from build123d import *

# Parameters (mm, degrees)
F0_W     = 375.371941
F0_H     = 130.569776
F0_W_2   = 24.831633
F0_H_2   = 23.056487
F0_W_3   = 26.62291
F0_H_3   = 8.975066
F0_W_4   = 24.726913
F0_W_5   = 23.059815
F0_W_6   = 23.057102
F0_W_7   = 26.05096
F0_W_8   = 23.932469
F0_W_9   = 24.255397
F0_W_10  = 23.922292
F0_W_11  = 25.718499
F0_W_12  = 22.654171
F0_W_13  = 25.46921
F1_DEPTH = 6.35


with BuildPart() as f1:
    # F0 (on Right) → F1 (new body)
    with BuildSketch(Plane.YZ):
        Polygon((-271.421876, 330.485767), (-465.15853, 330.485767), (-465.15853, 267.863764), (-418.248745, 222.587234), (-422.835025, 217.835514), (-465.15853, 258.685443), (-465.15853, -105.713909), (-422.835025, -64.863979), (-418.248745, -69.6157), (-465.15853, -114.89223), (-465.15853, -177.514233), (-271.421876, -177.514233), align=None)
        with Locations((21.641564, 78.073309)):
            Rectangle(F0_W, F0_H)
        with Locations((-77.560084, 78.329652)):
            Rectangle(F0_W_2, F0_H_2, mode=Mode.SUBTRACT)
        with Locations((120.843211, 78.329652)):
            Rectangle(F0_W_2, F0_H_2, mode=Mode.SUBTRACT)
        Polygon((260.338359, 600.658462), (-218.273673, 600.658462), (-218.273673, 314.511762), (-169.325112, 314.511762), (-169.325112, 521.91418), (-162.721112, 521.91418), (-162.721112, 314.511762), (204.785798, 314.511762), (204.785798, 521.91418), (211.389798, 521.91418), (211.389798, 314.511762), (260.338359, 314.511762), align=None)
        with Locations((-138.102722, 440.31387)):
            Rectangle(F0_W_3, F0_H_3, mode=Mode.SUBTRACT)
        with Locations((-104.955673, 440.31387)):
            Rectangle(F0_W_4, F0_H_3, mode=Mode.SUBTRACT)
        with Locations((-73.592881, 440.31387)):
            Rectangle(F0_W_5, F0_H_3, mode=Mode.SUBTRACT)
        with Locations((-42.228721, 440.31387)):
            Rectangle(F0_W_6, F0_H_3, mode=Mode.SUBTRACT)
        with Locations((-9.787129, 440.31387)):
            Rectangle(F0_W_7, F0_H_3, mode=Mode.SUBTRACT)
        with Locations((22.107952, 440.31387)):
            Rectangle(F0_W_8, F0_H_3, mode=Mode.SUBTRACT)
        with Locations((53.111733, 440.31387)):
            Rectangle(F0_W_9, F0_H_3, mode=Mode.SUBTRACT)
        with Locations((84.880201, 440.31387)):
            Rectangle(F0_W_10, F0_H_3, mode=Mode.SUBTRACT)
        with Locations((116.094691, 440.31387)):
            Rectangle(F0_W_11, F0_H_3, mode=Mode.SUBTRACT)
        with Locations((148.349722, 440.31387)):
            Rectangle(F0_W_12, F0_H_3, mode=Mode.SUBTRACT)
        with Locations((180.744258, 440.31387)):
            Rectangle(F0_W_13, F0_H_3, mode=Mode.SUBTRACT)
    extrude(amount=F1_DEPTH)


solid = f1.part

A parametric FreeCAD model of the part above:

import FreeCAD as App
import Part
import Sketcher

V = App.Vector
Q = App.Units.Quantity

doc = App.newDocument("Part")
body = doc.addObject("PartDesign::Body", "Body")
body.AllowCompound = True

# Sketch on YZ plane
sketch1 = body.newObject("Sketcher::SketchObject", "Sketch")
sketch1.AttachmentSupport = (doc.getObject("YZ_Plane"), [""])
sketch1.MapMode = "FlatFace"
sketch1.addGeometry(Part.LineSegment(V(-271, 330, 0), V(-465, 330, 0)), False)
sketch1.addGeometry(Part.LineSegment(V(-465, 330, 0), V(-465, 268, 0)), False)
sketch1.addGeometry(Part.LineSegment(V(-465, 268, 0), V(-418, 223, 0)), False)
sketch1.addGeometry(Part.LineSegment(V(-418, 223, 0), V(-423, 218, 0)), False)
sketch1.addGeometry(Part.LineSegment(V(-423, 218, 0), V(-465, 259, 0)), False)
sketch1.addGeometry(Part.LineSegment(V(-465, 259, 0), V(-465, -106, 0)), False)
sketch1.addGeometry(Part.LineSegment(V(-465, -106, 0), V(-423, -65, 0)), False)
sketch1.addGeometry(Part.LineSegment(V(-423, -65, 0), V(-418, -70, 0)), False)
sketch1.addGeometry(Part.LineSegment(V(-418, -70, 0), V(-465, -115, 0)), False)
sketch1.addGeometry(Part.LineSegment(V(-465, -115, 0), V(-465, -178, 0)), False)
sketch1.addGeometry(Part.LineSegment(V(-465, -178, 0), V(-271, -178, 0)), False)
sketch1.addGeometry(Part.LineSegment(V(-271, -178, 0), V(-271, 330, 0)), False)
sketch1.addGeometry(Part.LineSegment(V(-166, 143, 0), V(-166, 13, 0)), False)
sketch1.addGeometry(Part.LineSegment(V(-166, 13, 0), V(209, 13, 0)), False)
sketch1.addGeometry(Part.LineSegment(V(209, 13, 0), V(209, 143, 0)), False)
sketch1.addGeometry(Part.LineSegment(V(209, 143, 0), V(-166, 143, 0)), False)
sketch1.addGeometry(Part.LineSegment(V(-65, 67, 0), V(-90, 67, 0)), False)
sketch1.addGeometry(Part.LineSegment(V(-90, 67, 0), V(-90, 90, 0)), False)
sketch1.addGeometry(Part.LineSegment(V(-90, 90, 0), V(-65, 90, 0)), False)
sketch1.addGeometry(Part.LineSegment(V(-65, 90, 0), V(-65, 67, 0)), False)
sketch1.addGeometry(Part.LineSegment(V(133, 67, 0), V(108, 67, 0)), False)
sketch1.addGeometry(Part.LineSegment(V(108, 67, 0), V(108, 90, 0)), False)
sketch1.addGeometry(Part.LineSegment(V(108, 90, 0), V(133, 90, 0)), False)
sketch1.addGeometry(Part.LineSegment(V(133, 90, 0), V(133, 67, 0)), False)
sketch1.addGeometry(Part.LineSegment(V(260, 601, 0), V(-218, 601, 0)), False)
sketch1.addGeometry(Part.LineSegment(V(-218, 601, 0), V(-218, 315, 0)), False)
sketch1.addGeometry(Part.LineSegment(V(-218, 315, 0), V(-169, 315, 0)), False)
sketch1.addGeometry(Part.LineSegment(V(-169, 315, 0), V(-169, 522, 0)), False)
sketch1.addGeometry(Part.LineSegment(V(-169, 522, 0), V(-163, 522, 0)), False)
sketch1.addGeometry(Part.LineSegment(V(-163, 522, 0), V(-163, 315, 0)), False)
sketch1.addGeometry(Part.LineSegment(V(-163, 315, 0), V(205, 315, 0)), False)
sketch1.addGeometry(Part.LineSegment(V(205, 315, 0), V(205, 522, 0)), False)
sketch1.addGeometry(Part.LineSegment(V(205, 522, 0), V(211, 522, 0)), False)
sketch1.addGeometry(Part.LineSegment(V(211, 522, 0), V(211, 315, 0)), False)
sketch1.addGeometry(Part.LineSegment(V(211, 315, 0), V(260, 315, 0)), False)
sketch1.addGeometry(Part.LineSegment(V(260, 315, 0), V(260, 601, 0)), False)
sketch1.addGeometry(Part.LineSegment(V(-125, 436, 0), V(-151, 436, 0)), False)
sketch1.addGeometry(Part.LineSegment(V(-151, 436, 0), V(-151, 445, 0)), False)
sketch1.addGeometry(Part.LineSegment(V(-151, 445, 0), V(-125, 445, 0)), False)
sketch1.addGeometry(Part.LineSegment(V(-125, 445, 0), V(-125, 436, 0)), False)
sketch1.addGeometry(Part.LineSegment(V(-93, 436, 0), V(-117, 436, 0)), False)
sketch1.addGeometry(Part.LineSegment(V(-117, 436, 0), V(-117, 445, 0)), False)
sketch1.addGeometry(Part.LineSegment(V(-117, 445, 0), V(-93, 445, 0)), False)
sketch1.addGeometry(Part.LineSegment(V(-93, 445, 0), V(-93, 436, 0)), False)
sketch1.addGeometry(Part.LineSegment(V(-62, 436, 0), V(-85, 436, 0)), False)
sketch1.addGeometry(Part.LineSegment(V(-85, 436, 0), V(-85, 445, 0)), False)
sketch1.addGeometry(Part.LineSegment(V(-85, 445, 0), V(-62, 445, 0)), False)
sketch1.addGeometry(Part.LineSegment(V(-62, 445, 0), V(-62, 436, 0)), False)
sketch1.addGeometry(Part.LineSegment(V(-31, 436, 0), V(-54, 436, 0)), False)
sketch1.addGeometry(Part.LineSegment(V(-54, 436, 0), V(-54, 445, 0)), False)
sketch1.addGeometry(Part.LineSegment(V(-54, 445, 0), V(-31, 445, 0)), False)
sketch1.addGeometry(Part.LineSegment(V(-31, 445, 0), V(-31, 436, 0)), False)
sketch1.addGeometry(Part.LineSegment(V(3, 436, 0), V(-23, 436, 0)), False)
sketch1.addGeometry(Part.LineSegment(V(-23, 436, 0), V(-23, 445, 0)), False)
sketch1.addGeometry(Part.LineSegment(V(-23, 445, 0), V(3, 445, 0)), False)
sketch1.addGeometry(Part.LineSegment(V(3, 445, 0), V(3, 436, 0)), False)
sketch1.addGeometry(Part.LineSegment(V(34, 436, 0), V(10, 436, 0)), False)
sketch1.addGeometry(Part.LineSegment(V(10, 436, 0), V(10, 445, 0)), False)
sketch1.addGeometry(Part.LineSegment(V(10, 445, 0), V(34, 445, 0)), False)
sketch1.addGeometry(Part.LineSegment(V(34, 445, 0), V(34, 436, 0)), False)
sketch1.addGeometry(Part.LineSegment(V(65, 436, 0), V(41, 436, 0)), False)
sketch1.addGeometry(Part.LineSegment(V(41, 436, 0), V(41, 445, 0)), False)
sketch1.addGeometry(Part.LineSegment(V(41, 445, 0), V(65, 445, 0)), False)
sketch1.addGeometry(Part.LineSegment(V(65, 445, 0), V(65, 436, 0)), False)
sketch1.addGeometry(Part.LineSegment(V(97, 436, 0), V(73, 436, 0)), False)
sketch1.addGeometry(Part.LineSegment(V(73, 436, 0), V(73, 445, 0)), False)
sketch1.addGeometry(Part.LineSegment(V(73, 445, 0), V(97, 445, 0)), False)
sketch1.addGeometry(Part.LineSegment(V(97, 445, 0), V(97, 436, 0)), False)
sketch1.addGeometry(Part.LineSegment(V(129, 436, 0), V(103, 436, 0)), False)
sketch1.addGeometry(Part.LineSegment(V(103, 436, 0), V(103, 445, 0)), False)
sketch1.addGeometry(Part.LineSegment(V(103, 445, 0), V(129, 445, 0)), False)
sketch1.addGeometry(Part.LineSegment(V(129, 445, 0), V(129, 436, 0)), False)
sketch1.addGeometry(Part.LineSegment(V(160, 436, 0), V(137, 436, 0)), False)
sketch1.addGeometry(Part.LineSegment(V(137, 436, 0), V(137, 445, 0)), False)
sketch1.addGeometry(Part.LineSegment(V(137, 445, 0), V(160, 445, 0)), False)
sketch1.addGeometry(Part.LineSegment(V(160, 445, 0), V(160, 436, 0)), False)
sketch1.addGeometry(Part.LineSegment(V(193, 436, 0), V(168, 436, 0)), False)
sketch1.addGeometry(Part.LineSegment(V(168, 436, 0), V(168, 445, 0)), False)
sketch1.addGeometry(Part.LineSegment(V(168, 445, 0), V(193, 445, 0)), False)
sketch1.addGeometry(Part.LineSegment(V(193, 445, 0), V(193, 436, 0)), False)
sketch1.addConstraint(Sketcher.Constraint("Coincident", 0, 2, 1, 1))
sketch1.addConstraint(Sketcher.Constraint("Coincident", 1, 2, 2, 1))
sketch1.addConstraint(Sketcher.Constraint("Coincident", 2, 2, 3, 1))
sketch1.addConstraint(Sketcher.Constraint("Coincident", 3, 2, 4, 1))
sketch1.addConstraint(Sketcher.Constraint("Coincident", 4, 2, 5, 1))
sketch1.addConstraint(Sketcher.Constraint("Coincident", 5, 2, 6, 1))
sketch1.addConstraint(Sketcher.Constraint("Coincident", 6, 2, 7, 1))
sketch1.addConstraint(Sketcher.Constraint("Coincident", 7, 2, 8, 1))
sketch1.addConstraint(Sketcher.Constraint("Coincident", 8, 2, 9, 1))
sketch1.addConstraint(Sketcher.Constraint("Coincident", 9, 2, 10, 1))
sketch1.addConstraint(Sketcher.Constraint("Coincident", 10, 2, 11, 1))
sketch1.addConstraint(Sketcher.Constraint("Coincident", 11, 2, 0, 1))
sketch1.addConstraint(Sketcher.Constraint("Coincident", 12, 2, 13, 1))
sketch1.addConstraint(Sketcher.Constraint("Coincident", 13, 2, 14, 1))
sketch1.addConstraint(Sketcher.Constraint("Coincident", 14, 2, 15, 1))
sketch1.addConstraint(Sketcher.Constraint("Coincident", 15, 2, 12, 1))
sketch1.addConstraint(Sketcher.Constraint("Coincident", 16, 2, 17, 1))
sketch1.addConstraint(Sketcher.Constraint("Coincident", 17, 2, 18, 1))
sketch1.addConstraint(Sketcher.Constraint("Coincident", 18, 2, 19, 1))
sketch1.addConstraint(Sketcher.Constraint("Coincident", 19, 2, 16, 1))
sketch1.addConstraint(Sketcher.Constraint("Coincident", 20, 2, 21, 1))
sketch1.addConstraint(Sketcher.Constraint("Coincident", 21, 2, 22, 1))
sketch1.addConstraint(Sketcher.Constraint("Coincident", 22, 2, 23, 1))
sketch1.addConstraint(Sketcher.Constraint("Coincident", 23, 2, 20, 1))
sketch1.addConstraint(Sketcher.Constraint("Coincident", 24, 2, 25, 1))
sketch1.addConstraint(Sketcher.Constraint("Coincident", 25, 2, 26, 1))
sketch1.addConstraint(Sketcher.Constraint("Coincident", 26, 2, 27, 1))
sketch1.addConstraint(Sketcher.Constraint("Coincident", 27, 2, 28, 1))
sketch1.addConstraint(Sketcher.Constraint("Coincident", 28, 2, 29, 1))
sketch1.addConstraint(Sketcher.Constraint("Coincident", 29, 2, 30, 1))
sketch1.addConstraint(Sketcher.Constraint("Coincident", 30, 2, 31, 1))
sketch1.addConstraint(Sketcher.Constraint("Coincident", 31, 2, 32, 1))
sketch1.addConstraint(Sketcher.Constraint("Coincident", 32, 2, 33, 1))
sketch1.addConstraint(Sketcher.Constraint("Coincident", 33, 2, 34, 1))
sketch1.addConstraint(Sketcher.Constraint("Coincident", 34, 2, 35, 1))
sketch1.addConstraint(Sketcher.Constraint("Coincident", 35, 2, 24, 1))
sketch1.addConstraint(Sketcher.Constraint("Coincident", 36, 2, 37, 1))
sketch1.addConstraint(Sketcher.Constraint("Coincident", 37, 2, 38, 1))
sketch1.addConstraint(Sketcher.Constraint("Coincident", 38, 2, 39, 1))
sketch1.addConstraint(Sketcher.Constraint("Coincident", 39, 2, 36, 1))
sketch1.addConstraint(Sketcher.Constraint("Coincident", 40, 2, 41, 1))
sketch1.addConstraint(Sketcher.Constraint("Coincident", 41, 2, 42, 1))
sketch1.addConstraint(Sketcher.Constraint("Coincident", 42, 2, 43, 1))
sketch1.addConstraint(Sketcher.Constraint("Coincident", 43, 2, 40, 1))
sketch1.addConstraint(Sketcher.Constraint("Coincident", 44, 2, 45, 1))
sketch1.addConstraint(Sketcher.Constraint("Coincident", 45, 2, 46, 1))
sketch1.addConstraint(Sketcher.Constraint("Coincident", 46, 2, 47, 1))
sketch1.addConstraint(Sketcher.Constraint("Coincident", 47, 2, 44, 1))
sketch1.addConstraint(Sketcher.Constraint("Coincident", 48, 2, 49, 1))
sketch1.addConstraint(Sketcher.Constraint("Coincident", 49, 2, 50, 1))
sketch1.addConstraint(Sketcher.Constraint("Coincident", 50, 2, 51, 1))
sketch1.addConstraint(Sketcher.Constraint("Coincident", 51, 2, 48, 1))
sketch1.addConstraint(Sketcher.Constraint("Coincident", 52, 2, 53, 1))
sketch1.addConstraint(Sketcher.Constraint("Coincident", 53, 2, 54, 1))
sketch1.addConstraint(Sketcher.Constraint("Coincident", 54, 2, 55, 1))
sketch1.addConstraint(Sketcher.Constraint("Coincident", 55, 2, 52, 1))
sketch1.addConstraint(Sketcher.Constraint("Coincident", 56, 2, 57, 1))
sketch1.addConstraint(Sketcher.Constraint("Coincident", 57, 2, 58, 1))
sketch1.addConstraint(Sketcher.Constraint("Coincident", 58, 2, 59, 1))
sketch1.addConstraint(Sketcher.Constraint("Coincident", 59, 2, 56, 1))
sketch1.addConstraint(Sketcher.Constraint("Coincident", 60, 2, 61, 1))
sketch1.addConstraint(Sketcher.Constraint("Coincident", 61, 2, 62, 1))
sketch1.addConstraint(Sketcher.Constraint("Coincident", 62, 2, 63, 1))
sketch1.addConstraint(Sketcher.Constraint("Coincident", 63, 2, 60, 1))
sketch1.addConstraint(Sketcher.Constraint("Coincident", 64, 2, 65, 1))
sketch1.addConstraint(Sketcher.Constraint("Coincident", 65, 2, 66, 1))
sketch1.addConstraint(Sketcher.Constraint("Coincident", 66, 2, 67, 1))
sketch1.addConstraint(Sketcher.Constraint("Coincident", 67, 2, 64, 1))
sketch1.addConstraint(Sketcher.Constraint("Coincident", 68, 2, 69, 1))
sketch1.addConstraint(Sketcher.Constraint("Coincident", 69, 2, 70, 1))
sketch1.addConstraint(Sketcher.Constraint("Coincident", 70, 2, 71, 1))
sketch1.addConstraint(Sketcher.Constraint("Coincident", 71, 2, 68, 1))
sketch1.addConstraint(Sketcher.Constraint("Coincident", 72, 2, 73, 1))
sketch1.addConstraint(Sketcher.Constraint("Coincident", 73, 2, 74, 1))
sketch1.addConstraint(Sketcher.Constraint("Coincident", 74, 2, 75, 1))
sketch1.addConstraint(Sketcher.Constraint("Coincident", 75, 2, 72, 1))
sketch1.addConstraint(Sketcher.Constraint("Coincident", 76, 2, 77, 1))
sketch1.addConstraint(Sketcher.Constraint("Coincident", 77, 2, 78, 1))
sketch1.addConstraint(Sketcher.Constraint("Coincident", 78, 2, 79, 1))
sketch1.addConstraint(Sketcher.Constraint("Coincident", 79, 2, 76, 1))
sketch1.addConstraint(Sketcher.Constraint("Horizontal", 0))
sketch1.addConstraint(Sketcher.Constraint("Vertical", 1))
sketch1.addConstraint(Sketcher.Constraint("Vertical", 5))
sketch1.addConstraint(Sketcher.Constraint("Vertical", 9))
sketch1.addConstraint(Sketcher.Constraint("Horizontal", 10))
sketch1.addConstraint(Sketcher.Constraint("Vertical", 11))
sketch1.addConstraint(Sketcher.Constraint("Vertical", 12))
sketch1.addConstraint(Sketcher.Constraint("Horizontal", 13))
sketch1.addConstraint(Sketcher.Constraint("Vertical", 14))
sketch1.addConstraint(Sketcher.Constraint("Horizontal", 15))
sketch1.addConstraint(Sketcher.Constraint("Horizontal", 16))
sketch1.addConstraint(Sketcher.Constraint("Vertical", 17))
sketch1.addConstraint(Sketcher.Constraint("Horizontal", 18))
sketch1.addConstraint(Sketcher.Constraint("Vertical", 19))
sketch1.addConstraint(Sketcher.Constraint("Horizontal", 20))
sketch1.addConstraint(Sketcher.Constraint("Vertical", 21))
sketch1.addConstraint(Sketcher.Constraint("Horizontal", 22))
sketch1.addConstraint(Sketcher.Constraint("Vertical", 23))
sketch1.addConstraint(Sketcher.Constraint("Horizontal", 24))
sketch1.addConstraint(Sketcher.Constraint("Vertical", 25))
sketch1.addConstraint(Sketcher.Constraint("Horizontal", 26))
sketch1.addConstraint(Sketcher.Constraint("Vertical", 27))
sketch1.addConstraint(Sketcher.Constraint("Horizontal", 28))
sketch1.addConstraint(Sketcher.Constraint("Vertical", 29))
sketch1.addConstraint(Sketcher.Constraint("Horizontal", 30))
sketch1.addConstraint(Sketcher.Constraint("Vertical", 31))
sketch1.addConstraint(Sketcher.Constraint("Horizontal", 32))
sketch1.addConstraint(Sketcher.Constraint("Vertical", 33))
sketch1.addConstraint(Sketcher.Constraint("Horizontal", 34))
sketch1.addConstraint(Sketcher.Constraint("Vertical", 35))
sketch1.addConstraint(Sketcher.Constraint("Horizontal", 36))
sketch1.addConstraint(Sketcher.Constraint("Vertical", 37))
sketch1.addConstraint(Sketcher.Constraint("Horizontal", 38))
sketch1.addConstraint(Sketcher.Constraint("Vertical", 39))
sketch1.addConstraint(Sketcher.Constraint("Horizontal", 40))
sketch1.addConstraint(Sketcher.Constraint("Vertical", 41))
sketch1.addConstraint(Sketcher.Constraint("Horizontal", 42))
sketch1.addConstraint(Sketcher.Constraint("Vertical", 43))
sketch1.addConstraint(Sketcher.Constraint("Horizontal", 44))
sketch1.addConstraint(Sketcher.Constraint("Vertical", 45))
sketch1.addConstraint(Sketcher.Constraint("Horizontal", 46))
sketch1.addConstraint(Sketcher.Constraint("Vertical", 47))
sketch1.addConstraint(Sketcher.Constraint("Horizontal", 48))
sketch1.addConstraint(Sketcher.Constraint("Vertical", 49))
sketch1.addConstraint(Sketcher.Constraint("Horizontal", 50))
sketch1.addConstraint(Sketcher.Constraint("Vertical", 51))
sketch1.addConstraint(Sketcher.Constraint("Horizontal", 52))
sketch1.addConstraint(Sketcher.Constraint("Vertical", 53))
sketch1.addConstraint(Sketcher.Constraint("Horizontal", 54))
sketch1.addConstraint(Sketcher.Constraint("Vertical", 55))
sketch1.addConstraint(Sketcher.Constraint("Horizontal", 56))
sketch1.addConstraint(Sketcher.Constraint("Vertical", 57))
sketch1.addConstraint(Sketcher.Constraint("Horizontal", 58))
sketch1.addConstraint(Sketcher.Constraint("Vertical", 59))
sketch1.addConstraint(Sketcher.Constraint("Horizontal", 60))
sketch1.addConstraint(Sketcher.Constraint("Vertical", 61))
sketch1.addConstraint(Sketcher.Constraint("Horizontal", 62))
sketch1.addConstraint(Sketcher.Constraint("Vertical", 63))
sketch1.addConstraint(Sketcher.Constraint("Horizontal", 64))
sketch1.addConstraint(Sketcher.Constraint("Vertical", 65))
sketch1.addConstraint(Sketcher.Constraint("Horizontal", 66))
sketch1.addConstraint(Sketcher.Constraint("Vertical", 67))
sketch1.addConstraint(Sketcher.Constraint("Horizontal", 68))
sketch1.addConstraint(Sketcher.Constraint("Vertical", 69))
sketch1.addConstraint(Sketcher.Constraint("Horizontal", 70))
sketch1.addConstraint(Sketcher.Constraint("Vertical", 71))
sketch1.addConstraint(Sketcher.Constraint("Horizontal", 72))
sketch1.addConstraint(Sketcher.Constraint("Vertical", 73))
sketch1.addConstraint(Sketcher.Constraint("Horizontal", 74))
sketch1.addConstraint(Sketcher.Constraint("Vertical", 75))
sketch1.addConstraint(Sketcher.Constraint("Horizontal", 76))
sketch1.addConstraint(Sketcher.Constraint("Vertical", 77))
sketch1.addConstraint(Sketcher.Constraint("Horizontal", 78))
sketch1.addConstraint(Sketcher.Constraint("Vertical", 79))
sketch1.addConstraint(Sketcher.Constraint("Perpendicular", 2, 3))
sketch1.addConstraint(Sketcher.Constraint("Perpendicular", 3, 4))
sketch1.addConstraint(Sketcher.Constraint("Perpendicular", 6, 7))
sketch1.addConstraint(Sketcher.Constraint("Perpendicular", 7, 8))
sketch1.addConstraint(Sketcher.Constraint("Horizontal", 19, 2, 20, 2))
sketch1.addConstraint(Sketcher.Constraint("Horizontal", 18, 2, 21, 2))
sketch1.addConstraint(Sketcher.Constraint("Horizontal", 26, 2, 29, 2))
sketch1.addConstraint(Sketcher.Constraint("Horizontal", 28, 2, 31, 2))
sketch1.addConstraint(Sketcher.Constraint("Horizontal", 30, 2, 33, 2))
sketch1.addConstraint(Sketcher.Constraint("Horizontal", 39, 2, 40, 2))
sketch1.addConstraint(Sketcher.Constraint("Horizontal", 38, 2, 41, 2))
sketch1.addConstraint(Sketcher.Constraint("Horizontal", 43, 2, 44, 2))
sketch1.addConstraint(Sketcher.Constraint("Horizontal", 42, 2, 45, 2))
sketch1.addConstraint(Sketcher.Constraint("Horizontal", 47, 2, 48, 2))
sketch1.addConstraint(Sketcher.Constraint("Horizontal", 46, 2, 49, 2))
sketch1.addConstraint(Sketcher.Constraint("Horizontal", 51, 2, 52, 2))
sketch1.addConstraint(Sketcher.Constraint("Horizontal", 50, 2, 53, 2))
sketch1.addConstraint(Sketcher.Constraint("Horizontal", 55, 2, 56, 2))
sketch1.addConstraint(Sketcher.Constraint("Horizontal", 54, 2, 57, 2))
sketch1.addConstraint(Sketcher.Constraint("Horizontal", 59, 2, 60, 2))
sketch1.addConstraint(Sketcher.Constraint("Horizontal", 58, 2, 61, 2))
sketch1.addConstraint(Sketcher.Constraint("Horizontal", 63, 2, 64, 2))
sketch1.addConstraint(Sketcher.Constraint("Horizontal", 62, 2, 65, 2))
sketch1.addConstraint(Sketcher.Constraint("Horizontal", 67, 2, 68, 2))
sketch1.addConstraint(Sketcher.Constraint("Horizontal", 66, 2, 69, 2))
sketch1.addConstraint(Sketcher.Constraint("Horizontal", 71, 2, 72, 2))
sketch1.addConstraint(Sketcher.Constraint("Horizontal", 70, 2, 73, 2))
sketch1.addConstraint(Sketcher.Constraint("Horizontal", 75, 2, 76, 2))
sketch1.addConstraint(Sketcher.Constraint("Horizontal", 74, 2, 77, 2))
sketch1.addConstraint(Sketcher.Constraint("Vertical", 1, 2, 4, 2))
sketch1.addConstraint(Sketcher.Constraint("Vertical", 3, 2, 6, 2))
sketch1.addConstraint(Sketcher.Constraint("Vertical", 2, 2, 7, 2))
sketch1.addConstraint(Sketcher.Constraint("Vertical", 5, 2, 8, 2))
sketch1.addConstraint(Sketcher.Constraint("Equal", 18, 20))
sketch1.addConstraint(Sketcher.Constraint("Equal", 28, 32))
sketch1.addConstraint(Sketcher.Constraint("Equal", 26, 34))
sketch1.addConstraint(Sketcher.Constraint("Equal", 1, 9))
sketch1.addConstraint(Sketcher.Constraint("Equal", 4, 6))
sketch1.addConstraint(Sketcher.Constraint("DistanceY", 11, 1, 11, 2, Q("20 in")))
sketch1.addConstraint(Sketcher.Constraint("DistanceX", 28, 1, 28, 2, Q("0.26 in")))
sketch1.addConstraint(Sketcher.Constraint("Distance", 3, Q("0.26 in")))
sketch1.addConstraint(Sketcher.Constraint("DistanceX", 68, 2, 68, 1, 25.718499))
sketch1.addConstraint(Sketcher.Constraint("DistanceY", 25, 2, 25, 1, 286.1467))
sketch1.addConstraint(Sketcher.Constraint("DistanceY", 6, 2, -1, 1, Q("2.5537 in")))
sketch1.addConstraint(Sketcher.Constraint("Distance", 2, 65.195798))
sketch1.addConstraint(Sketcher.Constraint("DistanceX", 13, 1, 13, 2, 375.371941))
sketch1.addConstraint(Sketcher.Constraint("DistanceX", 24, 2, 24, 1, 478.612032))
sketch1.addConstraint(Sketcher.Constraint("DistanceX", 26, 1, 26, 2, 48.948561))
sketch1.addConstraint(Sketcher.Constraint("DistanceX", 36, 2, 36, 1, 26.62291))
sketch1.addConstraint(Sketcher.Constraint("DistanceX", 52, 2, 52, 1, 26.05096))
sketch1.addConstraint(Sketcher.Constraint("DistanceX", 56, 2, 56, 1, 23.932469))
sketch1.addConstraint(Sketcher.Constraint("DistanceX", 64, 2, 64, 1, 23.922292))
sketch1.addConstraint(Sketcher.Constraint("DistanceX", 72, 2, 72, 1, 22.654171))
sketch1.addConstraint(Sketcher.Constraint("DistanceX", 76, 2, 76, 1, 25.46921))
sketch1.addConstraint(Sketcher.Constraint("DistanceY", 5, 2, 5, 1, 364.399352))
sketch1.addConstraint(Sketcher.Constraint("DistanceY", 27, 1, 27, 2, 207.402418))
sketch1.addConstraint(Sketcher.Constraint("DistanceY", 7, 2, -1, 1, 69.6157))
sketch1.addConstraint(Sketcher.Constraint("DistanceX", 16, 2, -1, 1, 89.9759))
sketch1.addConstraint(Sketcher.Constraint("DistanceX", -1, 1, 30, 2, 204.785798))
sketch1.addConstraint(Sketcher.Constraint("DistanceX", 0, 2, 0, 1, 193.736654))
sketch1.addConstraint(Sketcher.Constraint("DistanceX", 16, 2, 16, 1, 24.831633))
sketch1.addConstraint(Sketcher.Constraint("DistanceX", 40, 2, 40, 1, 24.726913))
sketch1.addConstraint(Sketcher.Constraint("DistanceX", 44, 2, 44, 1, 23.059815))
sketch1.addConstraint(Sketcher.Constraint("DistanceX", 48, 2, 48, 1, 23.057102))
sketch1.addConstraint(Sketcher.Constraint("DistanceX", 60, 2, 60, 1, 24.255397))
sketch1.addConstraint(Sketcher.Constraint("DistanceY", 12, 2, 12, 1, 130.569776))
sketch1.addConstraint(Sketcher.Constraint("DistanceY", 17, 1, 17, 2, 23.056487))
sketch1.addConstraint(Sketcher.Constraint("DistanceY", 37, 1, 37, 2, 8.975066))
sketch1.addConstraint(Sketcher.Constraint("DistanceX", 0, 2, -1, 1, 465.15853))
sketch1.addConstraint(Sketcher.Constraint("DistanceY", -1, 1, 12, 2, 12.788421))
sketch1.addConstraint(Sketcher.Constraint("DistanceY", -1, 1, 16, 2, 66.801408))
sketch1.addConstraint(Sketcher.Constraint("DistanceY", -1, 1, 24, 2, 600.658462))
sketch1.addConstraint(Sketcher.Constraint("DistanceX", 40, 2, -1, 1, 117.31913))
sketch1.addConstraint(Sketcher.Constraint("DistanceX", 44, 2, -1, 1, 85.122788))
sketch1.addConstraint(Sketcher.Constraint("DistanceX", 50, 2, -1, 1, 30.70017))
sketch1.addConstraint(Sketcher.Constraint("DistanceX", 52, 2, -1, 1, 22.812609))
sketch1.addConstraint(Sketcher.Constraint("DistanceX", -1, 1, 62, 2, 65.239431))
sketch1.addConstraint(Sketcher.Constraint("DistanceX", -1, 1, 68, 2, 103.235441))
sketch1.addConstraint(Sketcher.Constraint("DistanceX", 12, 2, -1, 1, 166.044407))
sketch1.addConstraint(Sketcher.Constraint("DistanceX", -1, 1, 20, 2, 108.427395))
sketch1.addConstraint(Sketcher.Constraint("DistanceX", 36, 2, -1, 1, 151.414177))
sketch1.addConstraint(Sketcher.Constraint("DistanceY", -1, 1, 36, 2, 435.826337))
sketch1.addConstraint(Sketcher.Constraint("DistanceX", -1, 1, 56, 2, 10.141718))
sketch1.addConstraint(Sketcher.Constraint("DistanceX", -1, 1, 64, 2, 72.919055))
sketch1.addConstraint(Sketcher.Constraint("DistanceX", -1, 1, 72, 2, 137.022637))
sketch1.addConstraint(Sketcher.Constraint("DistanceX", -1, 1, 76, 2, 168.009653))
pad1 = body.newObject("PartDesign::Pad", "Pad")
pad1.Profile = sketch1
pad1.Length = Q("0.25 in")

doc.recompute()
